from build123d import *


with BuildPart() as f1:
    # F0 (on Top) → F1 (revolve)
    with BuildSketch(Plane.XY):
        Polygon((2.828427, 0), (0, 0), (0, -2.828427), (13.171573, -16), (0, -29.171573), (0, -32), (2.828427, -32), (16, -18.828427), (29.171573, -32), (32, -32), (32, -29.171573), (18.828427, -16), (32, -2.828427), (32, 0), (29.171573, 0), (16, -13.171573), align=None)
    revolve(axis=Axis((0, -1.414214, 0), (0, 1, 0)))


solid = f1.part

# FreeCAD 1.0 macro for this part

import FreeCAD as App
import Part
import Sketcher

V = App.Vector

doc = App.newDocument("Part")
body = doc.addObject("PartDesign::Body", "Body")

sketch1 = body.newObject("Sketcher::SketchObject", "Sketch")
sketch1.AttachmentSupport = (doc.getObject("XY_Plane"), [""])
sketch1.MapMode = "FlatFace"
sketch1.addGeometry([
    Part.LineSegment(V(2.8, 0, 0), V(0, 0, 0)),
    Part.LineSegment(V(0, 0, 0), V(0, -2.8, 0)),
    Part.LineSegment(V(0, -2.8, 0), V(13.2, -16, 0)),
    Part.LineSegment(V(13.2, -16, 0), V(0, -29.2, 0)),
    Part.LineSegment(V(0, -29.2, 0), V(0, -32, 0)),
    Part.LineSegment(V(0, -32, 0), V(2.8, -32, 0)),
    Part.LineSegment(V(2.8, -32, 0), V(16, -18.8, 0)),
    Part.LineSegment(V(16, -18.8, 0), V(29.2, -32, 0)),
    Part.LineSegment(V(29.2, -32, 0), V(32, -32, 0)),
    Part.LineSegment(V(32, -32, 0), V(32, -29.2, 0)),
    Part.LineSegment(V(32, -29.2, 0), V(18.8, -16, 0)),
    Part.LineSegment(V(18.8, -16, 0), V(32, -2.8, 0)),
    Part.LineSegment(V(32, -2.8, 0), V(32, 0, 0)),
    Part.LineSegment(V(32, 0, 0), V(29.2, 0, 0)),
    Part.LineSegment(V(29.2, 0, 0), V(16, -13.2, 0)),
    Part.LineSegment(V(16, -13.2, 0), V(2.8, 0, 0)),
], False)
sketch1.addConstraint([
    Sketcher.Constraint("Coincident", 0, 2, 1, 1),
    Sketcher.Constraint("Coincident", 1, 2, 2, 1),
    Sketcher.Constraint("Coincident", 2, 2, 3, 1),
    Sketcher.Constraint("Coincident", 3, 2, 4, 1),
    Sketcher.Constraint("Coincident", 4, 2, 5, 1),
    Sketcher.Constraint("Coincident", 5, 2, 6, 1),
    Sketcher.Constraint("Coincident", 6, 2, 7, 1),
    Sketcher.Constraint("Coincident", 7, 2, 8, 1),
    Sketcher.Constraint("Coincident", 8, 2, 9, 1),
    Sketcher.Constraint("Coincident", 9, 2, 10, 1),
    Sketcher.Constraint("Coincident", 10, 2, 11, 1),
    Sketcher.Constraint("Coincident", 11, 2, 12, 1),
    Sketcher.Constraint("Coincident", 12, 2, 13, 1),
    Sketcher.Constraint("Coincident", 13, 2, 14, 1),
    Sketcher.Constraint("Coincident", 14, 2, 15, 1),
    Sketcher.Constraint("Coincident", 15, 2, 0, 1),
    Sketcher.Constraint("Horizontal", 0),
    Sketcher.Constraint("Vertical", 1),
    Sketcher.Constraint("Vertical", 4),
    Sketcher.Constraint("Horizontal", 5),
    Sketcher.Constraint("Horizontal", 8),
    Sketcher.Constraint("Vertical", 9),
    Sketcher.Constraint("Vertical", 12),
    Sketcher.Constraint("Horizontal", 13),
    Sketcher.Constraint("Coincident", 0, 2, -1, 1),
    Sketcher.Constraint("PointOnObject", 3, 2, -2),
    Sketcher.Constraint("PointOnObject", 12, 2, -1),
    Sketcher.Constraint("Perpendicular", 2, 3),
    Sketcher.Constraint("Parallel", 3, 6),
    Sketcher.Constraint("Perpendicular", 6, 7),
    Sketcher.Constraint("Parallel", 7, 10),
    Sketcher.Constraint("Perpendicular", 10, 11),
    Sketcher.Constraint("Parallel", 11, 14),
    Sketcher.Constraint("Perpendicular", 14, 15),
    Sketcher.Constraint("Horizontal", 5, 2, 7, 2),
    Sketcher.Constraint("Horizontal", 3, 2, 9, 2),
    Sketcher.Constraint("Horizontal", 2, 2, 10, 2),
    Sketcher.Constraint("Horizontal", 1, 2, 11, 2),
    Sketcher.Constraint("Vertical", 9, 2, 11, 2),
    Sketcher.Constraint("Vertical", 7, 2, 13, 2),
    Sketcher.Constraint("Vertical", 6, 2, 14, 2),
    Sketcher.Constraint("Equal", 5, 8),
    Sketcher.Constraint("Equal", 13, 1),
    Sketcher.Constraint("Equal", 1, 4),
    Sketcher.Constraint("Equal", 3, 6),
    Sketcher.Constraint("DistanceY", 2, 2, -1, 1, 16.0),
    Sketcher.Constraint("DistanceX", 0, 2, 0, 1, 2.828427),
])
revolution = body.newObject("PartDesign::Revolution", "Revolution")
revolution.Profile = sketch1
revolution.ReferenceAxis = (sketch1, ["V_Axis"])
revolution.Angle = 360

doc.recompute()
